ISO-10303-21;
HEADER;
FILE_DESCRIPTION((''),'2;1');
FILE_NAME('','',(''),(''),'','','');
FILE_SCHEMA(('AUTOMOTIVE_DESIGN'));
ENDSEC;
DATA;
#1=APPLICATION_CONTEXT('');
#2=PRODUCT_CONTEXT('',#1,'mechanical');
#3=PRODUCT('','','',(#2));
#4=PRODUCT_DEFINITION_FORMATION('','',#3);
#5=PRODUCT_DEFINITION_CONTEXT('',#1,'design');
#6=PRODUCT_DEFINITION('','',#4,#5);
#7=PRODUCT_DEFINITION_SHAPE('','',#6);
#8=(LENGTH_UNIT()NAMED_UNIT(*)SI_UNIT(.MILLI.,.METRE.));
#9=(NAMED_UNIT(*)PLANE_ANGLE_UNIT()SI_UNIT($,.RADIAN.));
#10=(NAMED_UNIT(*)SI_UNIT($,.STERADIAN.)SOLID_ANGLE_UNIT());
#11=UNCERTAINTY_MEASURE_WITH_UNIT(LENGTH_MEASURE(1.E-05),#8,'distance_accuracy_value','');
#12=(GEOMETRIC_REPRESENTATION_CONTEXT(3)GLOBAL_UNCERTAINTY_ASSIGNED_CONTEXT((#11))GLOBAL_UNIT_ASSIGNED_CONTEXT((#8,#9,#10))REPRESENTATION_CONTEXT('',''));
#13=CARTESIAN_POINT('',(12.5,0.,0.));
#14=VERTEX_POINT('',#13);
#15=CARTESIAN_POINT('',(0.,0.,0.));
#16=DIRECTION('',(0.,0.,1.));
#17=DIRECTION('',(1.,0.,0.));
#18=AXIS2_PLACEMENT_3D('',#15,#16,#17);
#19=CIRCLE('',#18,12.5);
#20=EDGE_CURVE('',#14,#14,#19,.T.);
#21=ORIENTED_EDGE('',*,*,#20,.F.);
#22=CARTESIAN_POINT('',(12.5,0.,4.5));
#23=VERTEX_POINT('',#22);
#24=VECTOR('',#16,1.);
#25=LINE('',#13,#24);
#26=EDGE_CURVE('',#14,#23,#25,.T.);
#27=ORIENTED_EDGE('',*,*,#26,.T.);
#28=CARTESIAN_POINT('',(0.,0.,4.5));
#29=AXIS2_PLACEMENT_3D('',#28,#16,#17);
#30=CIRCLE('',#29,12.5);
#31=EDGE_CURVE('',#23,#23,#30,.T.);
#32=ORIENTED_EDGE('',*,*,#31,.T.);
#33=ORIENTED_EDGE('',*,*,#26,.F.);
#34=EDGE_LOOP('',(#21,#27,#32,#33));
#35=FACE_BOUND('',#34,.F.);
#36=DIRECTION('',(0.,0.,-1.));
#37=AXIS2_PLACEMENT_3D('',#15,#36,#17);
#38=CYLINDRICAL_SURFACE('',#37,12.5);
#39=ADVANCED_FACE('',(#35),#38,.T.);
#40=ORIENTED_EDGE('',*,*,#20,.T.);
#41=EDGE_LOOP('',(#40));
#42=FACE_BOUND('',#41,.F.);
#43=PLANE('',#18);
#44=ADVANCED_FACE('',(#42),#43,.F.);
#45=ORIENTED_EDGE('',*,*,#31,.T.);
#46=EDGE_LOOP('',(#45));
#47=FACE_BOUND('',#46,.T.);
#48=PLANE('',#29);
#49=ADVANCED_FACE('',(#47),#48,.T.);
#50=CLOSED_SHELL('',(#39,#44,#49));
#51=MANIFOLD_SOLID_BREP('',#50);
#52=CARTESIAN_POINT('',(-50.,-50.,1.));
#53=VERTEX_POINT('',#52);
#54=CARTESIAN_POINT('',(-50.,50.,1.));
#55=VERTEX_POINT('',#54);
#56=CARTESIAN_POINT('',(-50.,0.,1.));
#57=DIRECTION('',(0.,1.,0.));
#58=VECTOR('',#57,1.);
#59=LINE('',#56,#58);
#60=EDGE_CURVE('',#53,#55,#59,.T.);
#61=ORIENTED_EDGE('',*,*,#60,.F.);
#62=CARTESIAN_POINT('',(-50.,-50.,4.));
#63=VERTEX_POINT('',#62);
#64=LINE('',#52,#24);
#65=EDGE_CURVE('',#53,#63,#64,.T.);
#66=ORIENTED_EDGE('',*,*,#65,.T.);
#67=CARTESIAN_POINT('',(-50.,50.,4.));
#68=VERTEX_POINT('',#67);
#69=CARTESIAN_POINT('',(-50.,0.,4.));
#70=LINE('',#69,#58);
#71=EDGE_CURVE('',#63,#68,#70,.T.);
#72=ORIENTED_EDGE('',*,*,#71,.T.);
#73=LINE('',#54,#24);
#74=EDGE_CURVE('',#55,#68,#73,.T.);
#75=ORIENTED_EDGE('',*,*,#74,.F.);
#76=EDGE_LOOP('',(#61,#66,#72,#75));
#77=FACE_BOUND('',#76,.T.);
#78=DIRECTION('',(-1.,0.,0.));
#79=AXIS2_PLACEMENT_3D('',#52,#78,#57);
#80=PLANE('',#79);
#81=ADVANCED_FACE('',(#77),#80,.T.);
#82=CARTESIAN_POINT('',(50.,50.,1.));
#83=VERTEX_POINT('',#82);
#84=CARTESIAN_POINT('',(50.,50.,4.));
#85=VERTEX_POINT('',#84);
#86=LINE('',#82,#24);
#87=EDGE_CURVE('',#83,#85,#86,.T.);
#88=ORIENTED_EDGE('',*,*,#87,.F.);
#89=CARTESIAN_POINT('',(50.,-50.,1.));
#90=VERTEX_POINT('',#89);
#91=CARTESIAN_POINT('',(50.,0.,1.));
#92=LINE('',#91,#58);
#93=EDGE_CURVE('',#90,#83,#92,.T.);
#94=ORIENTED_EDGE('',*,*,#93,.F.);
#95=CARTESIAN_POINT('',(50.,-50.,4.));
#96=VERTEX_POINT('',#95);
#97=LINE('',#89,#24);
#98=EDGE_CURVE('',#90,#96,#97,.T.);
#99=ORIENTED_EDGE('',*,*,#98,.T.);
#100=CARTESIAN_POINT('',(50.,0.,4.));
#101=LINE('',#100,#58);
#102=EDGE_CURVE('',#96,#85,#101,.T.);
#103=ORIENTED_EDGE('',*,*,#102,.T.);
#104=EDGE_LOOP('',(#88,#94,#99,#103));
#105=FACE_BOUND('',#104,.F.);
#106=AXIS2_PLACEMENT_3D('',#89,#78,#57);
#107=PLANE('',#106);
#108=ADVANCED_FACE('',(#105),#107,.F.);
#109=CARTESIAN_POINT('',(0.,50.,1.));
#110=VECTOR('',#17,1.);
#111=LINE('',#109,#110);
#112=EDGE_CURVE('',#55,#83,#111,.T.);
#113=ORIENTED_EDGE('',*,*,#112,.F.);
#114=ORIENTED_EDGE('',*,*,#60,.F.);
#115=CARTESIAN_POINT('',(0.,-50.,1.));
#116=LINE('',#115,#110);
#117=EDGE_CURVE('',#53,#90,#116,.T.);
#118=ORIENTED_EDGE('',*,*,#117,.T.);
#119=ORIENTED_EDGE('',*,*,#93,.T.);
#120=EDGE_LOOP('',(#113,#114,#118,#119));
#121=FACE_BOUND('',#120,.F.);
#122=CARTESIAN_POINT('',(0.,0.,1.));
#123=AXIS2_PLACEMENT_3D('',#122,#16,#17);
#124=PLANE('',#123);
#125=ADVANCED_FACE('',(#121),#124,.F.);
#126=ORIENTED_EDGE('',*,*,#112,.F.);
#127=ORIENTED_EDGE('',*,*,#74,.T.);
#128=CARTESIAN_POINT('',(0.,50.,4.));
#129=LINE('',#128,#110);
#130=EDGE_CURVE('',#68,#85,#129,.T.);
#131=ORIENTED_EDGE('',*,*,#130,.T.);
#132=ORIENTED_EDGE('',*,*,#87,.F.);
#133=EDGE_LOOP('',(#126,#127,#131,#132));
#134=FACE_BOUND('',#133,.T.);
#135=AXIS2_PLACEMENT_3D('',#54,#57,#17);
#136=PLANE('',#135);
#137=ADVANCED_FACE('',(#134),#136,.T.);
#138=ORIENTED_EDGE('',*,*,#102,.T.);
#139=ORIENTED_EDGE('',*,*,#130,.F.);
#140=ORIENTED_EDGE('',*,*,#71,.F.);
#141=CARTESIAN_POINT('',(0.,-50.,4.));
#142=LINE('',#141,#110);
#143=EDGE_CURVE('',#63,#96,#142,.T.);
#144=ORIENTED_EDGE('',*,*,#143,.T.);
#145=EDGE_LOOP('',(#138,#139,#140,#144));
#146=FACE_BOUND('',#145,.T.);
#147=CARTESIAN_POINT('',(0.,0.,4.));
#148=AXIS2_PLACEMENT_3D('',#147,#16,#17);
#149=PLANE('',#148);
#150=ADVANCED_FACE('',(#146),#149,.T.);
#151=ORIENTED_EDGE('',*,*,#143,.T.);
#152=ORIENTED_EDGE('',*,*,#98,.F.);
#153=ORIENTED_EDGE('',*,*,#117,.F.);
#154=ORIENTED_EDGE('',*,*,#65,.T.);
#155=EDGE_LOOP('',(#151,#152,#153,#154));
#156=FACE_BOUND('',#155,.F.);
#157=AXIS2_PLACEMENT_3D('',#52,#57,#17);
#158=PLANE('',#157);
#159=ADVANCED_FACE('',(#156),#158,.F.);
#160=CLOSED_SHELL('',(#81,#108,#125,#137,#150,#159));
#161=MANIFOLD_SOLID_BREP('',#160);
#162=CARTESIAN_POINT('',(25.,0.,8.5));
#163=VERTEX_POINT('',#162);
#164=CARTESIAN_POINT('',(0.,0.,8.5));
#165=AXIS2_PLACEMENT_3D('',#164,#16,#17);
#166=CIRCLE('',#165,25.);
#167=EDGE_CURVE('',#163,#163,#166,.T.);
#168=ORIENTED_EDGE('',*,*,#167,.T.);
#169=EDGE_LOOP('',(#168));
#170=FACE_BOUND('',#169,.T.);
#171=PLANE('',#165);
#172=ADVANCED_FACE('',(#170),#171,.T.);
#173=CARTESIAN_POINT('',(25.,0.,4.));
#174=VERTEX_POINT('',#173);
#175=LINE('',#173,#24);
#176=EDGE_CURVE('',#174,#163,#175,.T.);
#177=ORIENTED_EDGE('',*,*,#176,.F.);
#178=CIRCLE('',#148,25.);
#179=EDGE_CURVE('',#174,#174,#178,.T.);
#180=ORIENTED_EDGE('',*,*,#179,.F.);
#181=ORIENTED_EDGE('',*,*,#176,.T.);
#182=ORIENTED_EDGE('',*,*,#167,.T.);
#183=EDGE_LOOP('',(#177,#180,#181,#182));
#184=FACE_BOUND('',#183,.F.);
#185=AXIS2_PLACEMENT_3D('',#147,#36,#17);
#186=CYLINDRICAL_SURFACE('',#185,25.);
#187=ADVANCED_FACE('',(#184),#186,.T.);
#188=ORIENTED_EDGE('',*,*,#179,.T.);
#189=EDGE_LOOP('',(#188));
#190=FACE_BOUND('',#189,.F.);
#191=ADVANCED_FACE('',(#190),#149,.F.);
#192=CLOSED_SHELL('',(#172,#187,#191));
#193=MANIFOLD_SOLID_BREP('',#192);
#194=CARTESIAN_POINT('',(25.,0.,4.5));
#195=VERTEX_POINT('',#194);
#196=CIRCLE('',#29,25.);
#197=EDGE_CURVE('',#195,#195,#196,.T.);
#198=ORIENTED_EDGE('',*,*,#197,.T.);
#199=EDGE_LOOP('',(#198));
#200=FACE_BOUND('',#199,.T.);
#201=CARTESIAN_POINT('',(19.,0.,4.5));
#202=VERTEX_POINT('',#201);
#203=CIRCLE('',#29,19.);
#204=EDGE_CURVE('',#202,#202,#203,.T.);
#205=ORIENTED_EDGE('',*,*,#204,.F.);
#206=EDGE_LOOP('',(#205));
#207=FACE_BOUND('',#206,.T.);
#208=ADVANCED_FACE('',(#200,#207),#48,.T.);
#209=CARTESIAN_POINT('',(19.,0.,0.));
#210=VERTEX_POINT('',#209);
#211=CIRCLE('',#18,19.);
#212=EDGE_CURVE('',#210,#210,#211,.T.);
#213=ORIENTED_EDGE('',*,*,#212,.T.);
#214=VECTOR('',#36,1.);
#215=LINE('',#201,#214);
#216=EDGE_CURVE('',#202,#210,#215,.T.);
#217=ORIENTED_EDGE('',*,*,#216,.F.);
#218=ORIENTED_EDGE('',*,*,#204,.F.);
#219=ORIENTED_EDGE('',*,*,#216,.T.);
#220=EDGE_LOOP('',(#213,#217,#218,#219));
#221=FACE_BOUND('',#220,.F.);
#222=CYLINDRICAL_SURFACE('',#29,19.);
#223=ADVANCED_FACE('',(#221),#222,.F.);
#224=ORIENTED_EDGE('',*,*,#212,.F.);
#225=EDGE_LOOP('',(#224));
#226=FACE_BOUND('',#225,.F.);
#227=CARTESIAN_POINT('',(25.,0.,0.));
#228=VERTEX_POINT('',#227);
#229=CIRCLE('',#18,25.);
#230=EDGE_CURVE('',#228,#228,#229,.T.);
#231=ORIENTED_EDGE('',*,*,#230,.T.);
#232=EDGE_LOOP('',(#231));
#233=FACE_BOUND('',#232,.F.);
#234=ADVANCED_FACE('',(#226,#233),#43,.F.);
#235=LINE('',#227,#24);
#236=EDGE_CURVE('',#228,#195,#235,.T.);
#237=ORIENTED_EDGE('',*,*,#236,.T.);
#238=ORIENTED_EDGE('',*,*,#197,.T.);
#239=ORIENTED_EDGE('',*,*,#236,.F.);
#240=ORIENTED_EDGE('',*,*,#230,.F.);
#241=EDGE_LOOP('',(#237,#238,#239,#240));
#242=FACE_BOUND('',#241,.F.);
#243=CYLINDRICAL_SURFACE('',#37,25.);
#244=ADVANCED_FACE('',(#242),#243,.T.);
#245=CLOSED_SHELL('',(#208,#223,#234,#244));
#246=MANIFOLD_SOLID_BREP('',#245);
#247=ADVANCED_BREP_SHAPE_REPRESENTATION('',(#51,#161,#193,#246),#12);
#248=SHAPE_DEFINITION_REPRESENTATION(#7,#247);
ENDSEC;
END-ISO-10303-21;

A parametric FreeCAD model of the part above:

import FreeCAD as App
import Part
import Sketcher
Q = App.Units.Quantity


def add_polygon(sketch, points):
    """Adds a closed chain of lines whose ends are joined by coincident constraints."""
    first, n = sketch.GeometryCount, len(points)
    for a, b in zip(points, points[1:] + points[:1]):
        sketch.addGeometry(Part.LineSegment(App.Vector(*a, 0), App.Vector(*b, 0)), False)
    for i in range(n):
        sketch.addConstraint(Sketcher.Constraint("Coincident", first + i, 2, first + (i + 1) % n, 1))

doc = App.newDocument("Part")
params = doc.addObject("Spreadsheet::Sheet", "Params")
for row, (alias, value) in enumerate([
    ("sketch1_diameter", "50 mm"),
    ("pad1_length", "4.5 mm"),
    ("sketch2_diameter", "38 mm"),
    ("pocket1_length", "4.5 mm"),
    ("sketch3_diameter", "25 mm"),
    ("pad2_length", "4.5 mm"),
    ("sketch4_width", "100 mm"),
    ("pad3_length", "3 mm"),
    ("sketch5_diameter", "50 mm"),
    ("pad4_length", "4.5 mm"),
], start=1):
    params.set(f"A{row}", alias)
    params.set(f"B{row}", "=" + value)
    params.setAlias(f"B{row}", alias)

body = doc.addObject("PartDesign::Body", "Body")

sketch1 = doc.addObject("Sketcher::SketchObject", "Sketch")
body.addObject(sketch1)
sketch1.AttachmentSupport = (doc.XY_Plane, [""])
sketch1.MapMode = "FlatFace"
sketch1.addGeometry(Part.Circle(App.Vector(0, 0, 0), App.Vector(0, 0, 1), 25), False)
sketch1.addConstraint(Sketcher.Constraint("Coincident", 0, 3, -1, 1))
sketch1.addConstraint(Sketcher.Constraint("Diameter", 0, Q("50 mm")))
sketch1.setExpression("Constraints[1]", "Params.sketch1_diameter")
pad1 = doc.addObject("PartDesign::Pad", "Pad")
body.addObject(pad1)
pad1.Profile = sketch1
pad1.setExpression("Length", "Params.pad1_length")

sketch2 = doc.addObject("Sketcher::SketchObject", "Sketch001")
body.addObject(sketch2)
sketch2.AttachmentSupport = (doc.XY_Plane, [""])
sketch2.MapMode = "FlatFace"
sketch2.AttachmentOffset = App.Placement(App.Vector(0, 0, 4.5), App.Rotation())
sketch2.addGeometry(Part.Circle(App.Vector(0, 0, 0), App.Vector(0, 0, 1), 19), False)
sketch2.addConstraint(Sketcher.Constraint("Coincident", 0, 3, -1, 1))
sketch2.addConstraint(Sketcher.Constraint("Diameter", 0, Q("38 mm")))
sketch2.setExpression("Constraints[1]", "Params.sketch2_diameter")
pocket1 = doc.addObject("PartDesign::Pocket", "Pocket")
body.addObject(pocket1)
pocket1.Profile = sketch2
pocket1.setExpression("Length", "Params.pocket1_length")
body2 = doc.addObject("PartDesign::Body", "Body001")

sketch3 = doc.addObject("Sketcher::SketchObject", "Sketch002")
body2.addObject(sketch3)
sketch3.AttachmentSupport = (doc.getObject("XY_Plane001"), [""])
sketch3.MapMode = "FlatFace"
sketch3.addGeometry(Part.Circle(App.Vector(0, 0, 0), App.Vector(0, 0, 1), 12), False)
sketch3.addConstraint(Sketcher.Constraint("Coincident", 0, 3, -1, 1))
sketch3.addConstraint(Sketcher.Constraint("Diameter", 0, Q("25 mm")))
sketch3.setExpression("Constraints[1]", "Params.sketch3_diameter")
pad2 = doc.addObject("PartDesign::Pad", "Pad001")
body2.addObject(pad2)
pad2.Profile = sketch3
pad2.setExpression("Length", "Params.pad2_length")
body3 = doc.addObject("PartDesign::Body", "Body002")

sketch4 = doc.addObject("Sketcher::SketchObject", "Sketch003")
body3.addObject(sketch4)
sketch4.AttachmentSupport = (doc.getObject("XY_Plane002"), [""])
sketch4.MapMode = "FlatFace"
sketch4.AttachmentOffset = App.Placement(App.Vector(0, 0, 1), App.Rotation())
add_polygon(sketch4, [(-50, 50), (-50, -50), (50, -50), (50, 50)])
sketch4.addConstraint(Sketcher.Constraint("Vertical", 0))
sketch4.addConstraint(Sketcher.Constraint("Horizontal", 1))
sketch4.addConstraint(Sketcher.Constraint("Vertical", 2))
sketch4.addConstraint(Sketcher.Constraint("Horizontal", 3))
sketch4.addConstraint(Sketcher.Constraint("Symmetric", 0, 2, 2, 2, -1, 1))
sketch4.addConstraint(Sketcher.Constraint("Equal", 3, 0))
sketch4.addConstraint(Sketcher.Constraint("DistanceX", 1, 1, 1, 2, Q("100 mm")))
sketch4.setExpression("Constraints[10]", "Params.sketch4_width")
pad3 = doc.addObject("PartDesign::Pad", "Pad002")
body3.addObject(pad3)
pad3.Profile = sketch4
pad3.setExpression("Length", "Params.pad3_length")
body4 = doc.addObject("PartDesign::Body", "Body003")

sketch5 = doc.addObject("Sketcher::SketchObject", "Sketch004")
body4.addObject(sketch5)
sketch5.AttachmentSupport = (doc.getObject("XY_Plane003"), [""])
sketch5.MapMode = "FlatFace"
sketch5.AttachmentOffset = App.Placement(App.Vector(0, 0, 4), App.Rotation())
sketch5.addGeometry(Part.Circle(App.Vector(0, 0, 0), App.Vector(0, 0, 1), 25), False)
sketch5.addConstraint(Sketcher.Constraint("Coincident", 0, 3, -1, 1))
sketch5.addConstraint(Sketcher.Constraint("Diameter", 0, Q("50 mm")))
sketch5.setExpression("Constraints[1]", "Params.sketch5_diameter")
pad4 = doc.addObject("PartDesign::Pad", "Pad003")
body4.addObject(pad4)
pad4.Profile = sketch5
pad4.setExpression("Length", "Params.pad4_length")

doc.recompute()
